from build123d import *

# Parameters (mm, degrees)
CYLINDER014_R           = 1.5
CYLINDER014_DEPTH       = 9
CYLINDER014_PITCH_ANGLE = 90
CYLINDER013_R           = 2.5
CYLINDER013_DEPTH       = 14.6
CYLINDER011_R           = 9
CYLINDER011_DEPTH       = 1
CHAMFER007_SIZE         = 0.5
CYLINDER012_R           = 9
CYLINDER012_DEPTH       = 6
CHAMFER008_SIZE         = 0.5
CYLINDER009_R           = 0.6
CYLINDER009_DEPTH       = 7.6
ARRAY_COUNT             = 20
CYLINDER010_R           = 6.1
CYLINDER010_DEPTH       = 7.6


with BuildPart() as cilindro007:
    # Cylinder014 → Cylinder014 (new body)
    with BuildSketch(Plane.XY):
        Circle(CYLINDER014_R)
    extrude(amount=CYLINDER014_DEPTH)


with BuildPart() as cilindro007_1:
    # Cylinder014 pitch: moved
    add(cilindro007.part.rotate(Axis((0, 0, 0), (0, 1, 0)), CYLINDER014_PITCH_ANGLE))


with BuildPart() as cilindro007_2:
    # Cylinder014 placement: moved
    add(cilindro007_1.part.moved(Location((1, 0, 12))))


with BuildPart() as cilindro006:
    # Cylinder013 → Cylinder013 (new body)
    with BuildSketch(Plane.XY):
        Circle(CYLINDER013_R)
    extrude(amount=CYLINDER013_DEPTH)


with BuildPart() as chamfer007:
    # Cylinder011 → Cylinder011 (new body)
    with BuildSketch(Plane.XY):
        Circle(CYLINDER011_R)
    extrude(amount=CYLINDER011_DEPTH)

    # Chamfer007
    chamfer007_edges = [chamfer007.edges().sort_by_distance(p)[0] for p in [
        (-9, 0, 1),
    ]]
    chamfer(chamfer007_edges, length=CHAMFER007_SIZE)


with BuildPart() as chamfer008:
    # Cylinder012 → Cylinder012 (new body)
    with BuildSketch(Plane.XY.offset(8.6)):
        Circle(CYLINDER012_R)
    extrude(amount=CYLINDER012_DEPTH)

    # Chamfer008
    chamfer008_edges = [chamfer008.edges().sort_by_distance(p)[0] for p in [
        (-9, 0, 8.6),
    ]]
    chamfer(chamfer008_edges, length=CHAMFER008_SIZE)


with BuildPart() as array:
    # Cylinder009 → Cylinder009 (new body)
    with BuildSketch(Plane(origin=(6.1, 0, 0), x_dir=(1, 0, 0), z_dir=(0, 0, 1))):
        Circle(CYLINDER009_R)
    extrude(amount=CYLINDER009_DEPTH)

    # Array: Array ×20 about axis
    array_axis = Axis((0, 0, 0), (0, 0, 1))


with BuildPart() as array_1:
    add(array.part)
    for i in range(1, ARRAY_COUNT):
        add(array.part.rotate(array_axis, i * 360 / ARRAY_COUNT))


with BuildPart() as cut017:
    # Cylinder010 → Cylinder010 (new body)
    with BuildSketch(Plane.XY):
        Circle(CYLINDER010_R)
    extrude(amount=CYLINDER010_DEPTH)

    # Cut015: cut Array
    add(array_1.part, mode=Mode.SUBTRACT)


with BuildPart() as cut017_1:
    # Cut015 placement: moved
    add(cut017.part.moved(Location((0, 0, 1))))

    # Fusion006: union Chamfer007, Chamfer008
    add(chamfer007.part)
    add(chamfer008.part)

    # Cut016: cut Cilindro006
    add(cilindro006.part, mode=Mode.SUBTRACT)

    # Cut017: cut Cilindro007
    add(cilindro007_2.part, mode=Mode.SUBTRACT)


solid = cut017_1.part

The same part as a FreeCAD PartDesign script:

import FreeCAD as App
import Part
import Sketcher
from FreeCAD import Vector
Q = App.Units.Quantity


def edges_at(feature, points):
    """Names of the edges that pass closest to the given points."""
    edges = feature.Shape.Edges
    near = lambda p: min(range(len(edges)), key=lambda i: edges[i].distToShape(Part.Vertex(*p))[0])
    return sorted({f"Edge{near(p) + 1}" for p in points})

doc = App.newDocument("Part")
params = doc.addObject("Spreadsheet::Sheet", "Params")
for row, (alias, value) in enumerate([
    ("sketch1_diameter", "3 mm"),
    ("pad1_length", "9 mm"),
    ("sketch2_diameter", "5 mm"),
    ("pad2_length", "14.6 mm"),
    ("sketch3_diameter", "18 mm"),
    ("pad3_length", "1 mm"),
    ("chamfer_size", "0.5 mm"),
    ("sketch4_diameter", "18 mm"),
    ("pad4_length", "6 mm"),
    ("chamfer2_size", "0.5 mm"),
    ("sketch5_diameter", "1.2 mm"),
    ("pad5_length", "7.6 mm"),
    ("sketch6_diameter", "12.2 mm"),
    ("pad6_length", "7.6 mm"),
], start=1):
    params.set(f"A{row}", alias)
    params.set(f"B{row}", "=" + value)
    params.setAlias(f"B{row}", alias)

body = doc.addObject("PartDesign::Body", "Body")

sketch1 = body.newObject("Sketcher::SketchObject", "Sketch")
sketch1.AttachmentSupport = (doc.getObject("XY_Plane"), [""])
sketch1.MapMode = "FlatFace"
sketch1.addGeometry(Part.Circle(Vector(0, 0, 0), Vector(0, 0, 1), 1.5), False)
sketch1.addConstraint(Sketcher.Constraint("Coincident", 0, 3, -1, 1))
sketch1.addConstraint(Sketcher.Constraint("Diameter", 0, Q("3 mm")))
sketch1.setExpression("Constraints[1]", "Params.sketch1_diameter")
pad1 = body.newObject("PartDesign::Pad", "Pad")
pad1.Profile = sketch1
pad1.setExpression("Length", "Params.pad1_length")
body2 = doc.addObject("PartDesign::Body", "Body001")
doc.recompute()

body.Placement = App.Placement(Vector(0, 0, 0), App.Rotation(Vector(0, 1, 0), 90))
boolean = body2.newObject("PartDesign::Boolean", "Boolean")
boolean.Type = "Fuse"
boolean.addObjects([body])
body3 = doc.addObject("PartDesign::Body", "Body002")
doc.recompute()

body2.Placement = App.Placement(Vector(1, 0, 12), App.Rotation(Vector(0, 0, 1), 0))
boolean2 = body3.newObject("PartDesign::Boolean", "Boolean001")
boolean2.Type = "Fuse"
boolean2.addObjects([body2])
body4 = doc.addObject("PartDesign::Body", "Body003")

sketch2 = body4.newObject("Sketcher::SketchObject", "Sketch001")
sketch2.AttachmentSupport = (doc.getObject("XY_Plane003"), [""])
sketch2.MapMode = "FlatFace"
sketch2.addGeometry(Part.Circle(Vector(0, 0, 0), Vector(0, 0, 1), 2.5), False)
sketch2.addConstraint(Sketcher.Constraint("Coincident", 0, 3, -1, 1))
sketch2.addConstraint(Sketcher.Constraint("Diameter", 0, Q("5 mm")))
sketch2.setExpression("Constraints[1]", "Params.sketch2_diameter")
pad2 = body4.newObject("PartDesign::Pad", "Pad001")
pad2.Profile = sketch2
pad2.setExpression("Length", "Params.pad2_length")
body5 = doc.addObject("PartDesign::Body", "Body004")

sketch3 = body5.newObject("Sketcher::SketchObject", "Sketch002")
sketch3.AttachmentSupport = (doc.getObject("XY_Plane004"), [""])
sketch3.MapMode = "FlatFace"
sketch3.addGeometry(Part.Circle(Vector(0, 0, 0), Vector(0, 0, 1), 9), False)
sketch3.addConstraint(Sketcher.Constraint("Coincident", 0, 3, -1, 1))
sketch3.addConstraint(Sketcher.Constraint("Diameter", 0, Q("18 mm")))
sketch3.setExpression("Constraints[1]", "Params.sketch3_diameter")
pad3 = body5.newObject("PartDesign::Pad", "Pad002")
pad3.Profile = sketch3
pad3.setExpression("Length", "Params.pad3_length")
doc.recompute()

chamfer = body5.newObject("PartDesign::Chamfer", "Chamfer")
chamfer.Base = (pad3, edges_at(pad3, [(-9, 0, 1)]))
chamfer.setExpression("Size", "Params.chamfer_size")
body6 = doc.addObject("PartDesign::Body", "Body005")

sketch4 = body6.newObject("Sketcher::SketchObject", "Sketch003")
sketch4.AttachmentSupport = (doc.getObject("XY_Plane005"), [""])
sketch4.MapMode = "FlatFace"
sketch4.AttachmentOffset = App.Placement(Vector(0, 0, 8.6), App.Rotation())
sketch4.addGeometry(Part.Circle(Vector(0, 0, 0), Vector(0, 0, 1), 9), False)
sketch4.addConstraint(Sketcher.Constraint("Coincident", 0, 3, -1, 1))
sketch4.addConstraint(Sketcher.Constraint("Diameter", 0, Q("18 mm")))
sketch4.setExpression("Constraints[1]", "Params.sketch4_diameter")
pad4 = body6.newObject("PartDesign::Pad", "Pad003")
pad4.Profile = sketch4
pad4.setExpression("Length", "Params.pad4_length")
doc.recompute()

chamfer2 = body6.newObject("PartDesign::Chamfer", "Chamfer001")
chamfer2.Base = (pad4, edges_at(pad4, [(-9, 0, 8.6)]))
chamfer2.setExpression("Size", "Params.chamfer2_size")
body7 = doc.addObject("PartDesign::Body", "Body006")

sketch5 = body7.newObject("Sketcher::SketchObject", "Sketch004")
sketch5.AttachmentSupport = (doc.getObject("XY_Plane006"), [""])
sketch5.MapMode = "FlatFace"
sketch5.addGeometry(Part.Circle(Vector(6.1, 0, 0), Vector(0, 0, 1), 0.6), False)
sketch5.addConstraint(Sketcher.Constraint("PointOnObject", 0, 3, -1))
sketch5.addConstraint(Sketcher.Constraint("Diameter", 0, Q("1.2 mm")))
sketch5.addConstraint(Sketcher.Constraint("DistanceX", -1, 1, 0, 3, Q("6.1 mm")))
sketch5.setExpression("Constraints[1]", "Params.sketch5_diameter")
pad5 = body7.newObject("PartDesign::Pad", "Pad004")
pad5.Profile = sketch5
pad5.setExpression("Length", "Params.pad5_length")
body8 = doc.addObject("PartDesign::Body", "Body007")
body8.AllowCompound = True
doc.recompute()

body8.BaseFeature = body7
doc.recompute()

body9 = doc.addObject("PartDesign::Body", "Body008")
body9.BaseFeature = body7
body9.Placement = App.Placement(Vector(0, 0, 0), App.Rotation(Vector(0, 0, 1), 18))
boolean3 = body8.newObject("PartDesign::Boolean", "Boolean002")
boolean3.Type = "Fuse"
boolean3.addObjects([body9])
doc.recompute()

body10 = doc.addObject("PartDesign::Body", "Body009")
body10.BaseFeature = body7
body10.Placement = App.Placement(Vector(0, 0, 0), App.Rotation(Vector(0, 0, 1), 36))
boolean4 = body8.newObject("PartDesign::Boolean", "Boolean003")
boolean4.Type = "Fuse"
boolean4.addObjects([body10])
doc.recompute()

body11 = doc.addObject("PartDesign::Body", "Body010")
body11.BaseFeature = body7
body11.Placement = App.Placement(Vector(0, 0, 0), App.Rotation(Vector(0, 0, 1), 54))
boolean5 = body8.newObject("PartDesign::Boolean", "Boolean004")
boolean5.Type = "Fuse"
boolean5.addObjects([body11])
doc.recompute()

body12 = doc.addObject("PartDesign::Body", "Body011")
body12.BaseFeature = body7
body12.Placement = App.Placement(Vector(0, 0, 0), App.Rotation(Vector(0, 0, 1), 72))
boolean6 = body8.newObject("PartDesign::Boolean", "Boolean005")
boolean6.Type = "Fuse"
boolean6.addObjects([body12])
doc.recompute()

body13 = doc.addObject("PartDesign::Body", "Body012")
body13.BaseFeature = body7
body13.Placement = App.Placement(Vector(0, 0, 0), App.Rotation(Vector(0, 0, 1), 90))
boolean7 = body8.newObject("PartDesign::Boolean", "Boolean006")
boolean7.Type = "Fuse"
boolean7.addObjects([body13])
doc.recompute()

body14 = doc.addObject("PartDesign::Body", "Body013")
body14.BaseFeature = body7
body14.Placement = App.Placement(Vector(0, 0, 0), App.Rotation(Vector(0, 0, 1), 108))
boolean8 = body8.newObject("PartDesign::Boolean", "Boolean007")
boolean8.Type = "Fuse"
boolean8.addObjects([body14])
doc.recompute()

body15 = doc.addObject("PartDesign::Body", "Body014")
body15.BaseFeature = body7
body15.Placement = App.Placement(Vector(0, 0, 0), App.Rotation(Vector(0, 0, 1), 126))
boolean9 = body8.newObject("PartDesign::Boolean", "Boolean008")
boolean9.Type = "Fuse"
boolean9.addObjects([body15])
doc.recompute()

body16 = doc.addObject("PartDesign::Body", "Body015")
body16.BaseFeature = body7
body16.Placement = App.Placement(Vector(0, 0, 0), App.Rotation(Vector(0, 0, 1), 144))
boolean10 = body8.newObject("PartDesign::Boolean", "Boolean009")
boolean10.Type = "Fuse"
boolean10.addObjects([body16])
doc.recompute()

body17 = doc.addObject("PartDesign::Body", "Body016")
body17.BaseFeature = body7
body17.Placement = App.Placement(Vector(0, 0, 0), App.Rotation(Vector(0, 0, 1), 162))
boolean11 = body8.newObject("PartDesign::Boolean", "Boolean010")
boolean11.Type = "Fuse"
boolean11.addObjects([body17])
doc.recompute()

body18 = doc.addObject("PartDesign::Body", "Body017")
body18.BaseFeature = body7
body18.Placement = App.Placement(Vector(0, 0, 0), App.Rotation(Vector(0, 0, 1), 180))
boolean12 = body8.newObject("PartDesign::Boolean", "Boolean011")
boolean12.Type = "Fuse"
boolean12.addObjects([body18])
doc.recompute()

body19 = doc.addObject("PartDesign::Body", "Body018")
body19.BaseFeature = body7
body19.Placement = App.Placement(Vector(0, 0, 0), App.Rotation(Vector(0, 0, 1), 198))
boolean13 = body8.newObject("PartDesign::Boolean", "Boolean012")
boolean13.Type = "Fuse"
boolean13.addObjects([body19])
doc.recompute()

body20 = doc.addObject("PartDesign::Body", "Body019")
body20.BaseFeature = body7
body20.Placement = App.Placement(Vector(0, 0, 0), App.Rotation(Vector(0, 0, 1), 216))
boolean14 = body8.newObject("PartDesign::Boolean", "Boolean013")
boolean14.Type = "Fuse"
boolean14.addObjects([body20])
doc.recompute()

body21 = doc.addObject("PartDesign::Body", "Body020")
body21.BaseFeature = body7
body21.Placement = App.Placement(Vector(0, 0, 0), App.Rotation(Vector(0, 0, 1), 234))
boolean15 = body8.newObject("PartDesign::Boolean", "Boolean014")
boolean15.Type = "Fuse"
boolean15.addObjects([body21])
doc.recompute()

body22 = doc.addObject("PartDesign::Body", "Body021")
body22.BaseFeature = body7
body22.Placement = App.Placement(Vector(0, 0, 0), App.Rotation(Vector(0, 0, 1), 252))
boolean16 = body8.newObject("PartDesign::Boolean", "Boolean015")
boolean16.Type = "Fuse"
boolean16.addObjects([body22])
doc.recompute()

body23 = doc.addObject("PartDesign::Body", "Body022")
body23.BaseFeature = body7
body23.Placement = App.Placement(Vector(0, 0, 0), App.Rotation(Vector(0, 0, 1), 270))
boolean17 = body8.newObject("PartDesign::Boolean", "Boolean016")
boolean17.Type = "Fuse"
boolean17.addObjects([body23])
doc.recompute()

body24 = doc.addObject("PartDesign::Body", "Body023")
body24.BaseFeature = body7
body24.Placement = App.Placement(Vector(0, 0, 0), App.Rotation(Vector(0, 0, 1), 288))
boolean18 = body8.newObject("PartDesign::Boolean", "Boolean017")
boolean18.Type = "Fuse"
boolean18.addObjects([body24])
doc.recompute()

body25 = doc.addObject("PartDesign::Body", "Body024")
body25.BaseFeature = body7
body25.Placement = App.Placement(Vector(0, 0, 0), App.Rotation(Vector(0, 0, 1), 306))
boolean19 = body8.newObject("PartDesign::Boolean", "Boolean018")
boolean19.Type = "Fuse"
boolean19.addObjects([body25])
doc.recompute()

body26 = doc.addObject("PartDesign::Body", "Body025")
body26.BaseFeature = body7
body26.Placement = App.Placement(Vector(0, 0, 0), App.Rotation(Vector(0, 0, 1), 324))
boolean20 = body8.newObject("PartDesign::Boolean", "Boolean019")
boolean20.Type = "Fuse"
boolean20.addObjects([body26])
doc.recompute()

body7.Placement = App.Placement(Vector(0, 0, 0), App.Rotation(Vector(0, 0, 1), 342))
boolean21 = body8.newObject("PartDesign::Boolean", "Boolean020")
boolean21.Type = "Fuse"
boolean21.addObjects([body7])
body27 = doc.addObject("PartDesign::Body", "Body026")

sketch6 = body27.newObject("Sketcher::SketchObject", "Sketch005")
sketch6.AttachmentSupport = (doc.getObject("XY_Plane026"), [""])
sketch6.MapMode = "FlatFace"
sketch6.addGeometry(Part.Circle(Vector(0, 0, 0), Vector(0, 0, 1), 6.1), False)
sketch6.addConstraint(Sketcher.Constraint("Coincident", 0, 3, -1, 1))
sketch6.addConstraint(Sketcher.Constraint("Diameter", 0, Q("12.2 mm")))
sketch6.setExpression("Constraints[1]", "Params.sketch6_diameter")
pad6 = body27.newObject("PartDesign::Pad", "Pad005")
pad6.Profile = sketch6
pad6.setExpression("Length", "Params.pad6_length")
doc.recompute()

boolean22 = body27.newObject("PartDesign::Boolean", "Boolean021")
boolean22.Type = "Cut"
boolean22.addObjects([body8])
body28 = doc.addObject("PartDesign::Body", "Body027")
doc.recompute()

body27.Placement = App.Placement(Vector(0, 0, 1), App.Rotation(Vector(0, 0, 1), 0))
boolean23 = body28.newObject("PartDesign::Boolean", "Boolean022")
boolean23.Type = "Fuse"
boolean23.addObjects([body27])
doc.recompute()

boolean24 = body28.newObject("PartDesign::Boolean", "Boolean023")
boolean24.Type = "Fuse"
boolean24.addObjects([body5])
doc.recompute()

boolean25 = body28.newObject("PartDesign::Boolean", "Boolean024")
boolean25.Type = "Fuse"
boolean25.addObjects([body6])
doc.recompute()

boolean26 = body28.newObject("PartDesign::Boolean", "Boolean025")
boolean26.Type = "Cut"
boolean26.addObjects([body4])
doc.recompute()

boolean27 = body28.newObject("PartDesign::Boolean", "Boolean026")
boolean27.Type = "Cut"
boolean27.addObjects([body3])

doc.recompute()
